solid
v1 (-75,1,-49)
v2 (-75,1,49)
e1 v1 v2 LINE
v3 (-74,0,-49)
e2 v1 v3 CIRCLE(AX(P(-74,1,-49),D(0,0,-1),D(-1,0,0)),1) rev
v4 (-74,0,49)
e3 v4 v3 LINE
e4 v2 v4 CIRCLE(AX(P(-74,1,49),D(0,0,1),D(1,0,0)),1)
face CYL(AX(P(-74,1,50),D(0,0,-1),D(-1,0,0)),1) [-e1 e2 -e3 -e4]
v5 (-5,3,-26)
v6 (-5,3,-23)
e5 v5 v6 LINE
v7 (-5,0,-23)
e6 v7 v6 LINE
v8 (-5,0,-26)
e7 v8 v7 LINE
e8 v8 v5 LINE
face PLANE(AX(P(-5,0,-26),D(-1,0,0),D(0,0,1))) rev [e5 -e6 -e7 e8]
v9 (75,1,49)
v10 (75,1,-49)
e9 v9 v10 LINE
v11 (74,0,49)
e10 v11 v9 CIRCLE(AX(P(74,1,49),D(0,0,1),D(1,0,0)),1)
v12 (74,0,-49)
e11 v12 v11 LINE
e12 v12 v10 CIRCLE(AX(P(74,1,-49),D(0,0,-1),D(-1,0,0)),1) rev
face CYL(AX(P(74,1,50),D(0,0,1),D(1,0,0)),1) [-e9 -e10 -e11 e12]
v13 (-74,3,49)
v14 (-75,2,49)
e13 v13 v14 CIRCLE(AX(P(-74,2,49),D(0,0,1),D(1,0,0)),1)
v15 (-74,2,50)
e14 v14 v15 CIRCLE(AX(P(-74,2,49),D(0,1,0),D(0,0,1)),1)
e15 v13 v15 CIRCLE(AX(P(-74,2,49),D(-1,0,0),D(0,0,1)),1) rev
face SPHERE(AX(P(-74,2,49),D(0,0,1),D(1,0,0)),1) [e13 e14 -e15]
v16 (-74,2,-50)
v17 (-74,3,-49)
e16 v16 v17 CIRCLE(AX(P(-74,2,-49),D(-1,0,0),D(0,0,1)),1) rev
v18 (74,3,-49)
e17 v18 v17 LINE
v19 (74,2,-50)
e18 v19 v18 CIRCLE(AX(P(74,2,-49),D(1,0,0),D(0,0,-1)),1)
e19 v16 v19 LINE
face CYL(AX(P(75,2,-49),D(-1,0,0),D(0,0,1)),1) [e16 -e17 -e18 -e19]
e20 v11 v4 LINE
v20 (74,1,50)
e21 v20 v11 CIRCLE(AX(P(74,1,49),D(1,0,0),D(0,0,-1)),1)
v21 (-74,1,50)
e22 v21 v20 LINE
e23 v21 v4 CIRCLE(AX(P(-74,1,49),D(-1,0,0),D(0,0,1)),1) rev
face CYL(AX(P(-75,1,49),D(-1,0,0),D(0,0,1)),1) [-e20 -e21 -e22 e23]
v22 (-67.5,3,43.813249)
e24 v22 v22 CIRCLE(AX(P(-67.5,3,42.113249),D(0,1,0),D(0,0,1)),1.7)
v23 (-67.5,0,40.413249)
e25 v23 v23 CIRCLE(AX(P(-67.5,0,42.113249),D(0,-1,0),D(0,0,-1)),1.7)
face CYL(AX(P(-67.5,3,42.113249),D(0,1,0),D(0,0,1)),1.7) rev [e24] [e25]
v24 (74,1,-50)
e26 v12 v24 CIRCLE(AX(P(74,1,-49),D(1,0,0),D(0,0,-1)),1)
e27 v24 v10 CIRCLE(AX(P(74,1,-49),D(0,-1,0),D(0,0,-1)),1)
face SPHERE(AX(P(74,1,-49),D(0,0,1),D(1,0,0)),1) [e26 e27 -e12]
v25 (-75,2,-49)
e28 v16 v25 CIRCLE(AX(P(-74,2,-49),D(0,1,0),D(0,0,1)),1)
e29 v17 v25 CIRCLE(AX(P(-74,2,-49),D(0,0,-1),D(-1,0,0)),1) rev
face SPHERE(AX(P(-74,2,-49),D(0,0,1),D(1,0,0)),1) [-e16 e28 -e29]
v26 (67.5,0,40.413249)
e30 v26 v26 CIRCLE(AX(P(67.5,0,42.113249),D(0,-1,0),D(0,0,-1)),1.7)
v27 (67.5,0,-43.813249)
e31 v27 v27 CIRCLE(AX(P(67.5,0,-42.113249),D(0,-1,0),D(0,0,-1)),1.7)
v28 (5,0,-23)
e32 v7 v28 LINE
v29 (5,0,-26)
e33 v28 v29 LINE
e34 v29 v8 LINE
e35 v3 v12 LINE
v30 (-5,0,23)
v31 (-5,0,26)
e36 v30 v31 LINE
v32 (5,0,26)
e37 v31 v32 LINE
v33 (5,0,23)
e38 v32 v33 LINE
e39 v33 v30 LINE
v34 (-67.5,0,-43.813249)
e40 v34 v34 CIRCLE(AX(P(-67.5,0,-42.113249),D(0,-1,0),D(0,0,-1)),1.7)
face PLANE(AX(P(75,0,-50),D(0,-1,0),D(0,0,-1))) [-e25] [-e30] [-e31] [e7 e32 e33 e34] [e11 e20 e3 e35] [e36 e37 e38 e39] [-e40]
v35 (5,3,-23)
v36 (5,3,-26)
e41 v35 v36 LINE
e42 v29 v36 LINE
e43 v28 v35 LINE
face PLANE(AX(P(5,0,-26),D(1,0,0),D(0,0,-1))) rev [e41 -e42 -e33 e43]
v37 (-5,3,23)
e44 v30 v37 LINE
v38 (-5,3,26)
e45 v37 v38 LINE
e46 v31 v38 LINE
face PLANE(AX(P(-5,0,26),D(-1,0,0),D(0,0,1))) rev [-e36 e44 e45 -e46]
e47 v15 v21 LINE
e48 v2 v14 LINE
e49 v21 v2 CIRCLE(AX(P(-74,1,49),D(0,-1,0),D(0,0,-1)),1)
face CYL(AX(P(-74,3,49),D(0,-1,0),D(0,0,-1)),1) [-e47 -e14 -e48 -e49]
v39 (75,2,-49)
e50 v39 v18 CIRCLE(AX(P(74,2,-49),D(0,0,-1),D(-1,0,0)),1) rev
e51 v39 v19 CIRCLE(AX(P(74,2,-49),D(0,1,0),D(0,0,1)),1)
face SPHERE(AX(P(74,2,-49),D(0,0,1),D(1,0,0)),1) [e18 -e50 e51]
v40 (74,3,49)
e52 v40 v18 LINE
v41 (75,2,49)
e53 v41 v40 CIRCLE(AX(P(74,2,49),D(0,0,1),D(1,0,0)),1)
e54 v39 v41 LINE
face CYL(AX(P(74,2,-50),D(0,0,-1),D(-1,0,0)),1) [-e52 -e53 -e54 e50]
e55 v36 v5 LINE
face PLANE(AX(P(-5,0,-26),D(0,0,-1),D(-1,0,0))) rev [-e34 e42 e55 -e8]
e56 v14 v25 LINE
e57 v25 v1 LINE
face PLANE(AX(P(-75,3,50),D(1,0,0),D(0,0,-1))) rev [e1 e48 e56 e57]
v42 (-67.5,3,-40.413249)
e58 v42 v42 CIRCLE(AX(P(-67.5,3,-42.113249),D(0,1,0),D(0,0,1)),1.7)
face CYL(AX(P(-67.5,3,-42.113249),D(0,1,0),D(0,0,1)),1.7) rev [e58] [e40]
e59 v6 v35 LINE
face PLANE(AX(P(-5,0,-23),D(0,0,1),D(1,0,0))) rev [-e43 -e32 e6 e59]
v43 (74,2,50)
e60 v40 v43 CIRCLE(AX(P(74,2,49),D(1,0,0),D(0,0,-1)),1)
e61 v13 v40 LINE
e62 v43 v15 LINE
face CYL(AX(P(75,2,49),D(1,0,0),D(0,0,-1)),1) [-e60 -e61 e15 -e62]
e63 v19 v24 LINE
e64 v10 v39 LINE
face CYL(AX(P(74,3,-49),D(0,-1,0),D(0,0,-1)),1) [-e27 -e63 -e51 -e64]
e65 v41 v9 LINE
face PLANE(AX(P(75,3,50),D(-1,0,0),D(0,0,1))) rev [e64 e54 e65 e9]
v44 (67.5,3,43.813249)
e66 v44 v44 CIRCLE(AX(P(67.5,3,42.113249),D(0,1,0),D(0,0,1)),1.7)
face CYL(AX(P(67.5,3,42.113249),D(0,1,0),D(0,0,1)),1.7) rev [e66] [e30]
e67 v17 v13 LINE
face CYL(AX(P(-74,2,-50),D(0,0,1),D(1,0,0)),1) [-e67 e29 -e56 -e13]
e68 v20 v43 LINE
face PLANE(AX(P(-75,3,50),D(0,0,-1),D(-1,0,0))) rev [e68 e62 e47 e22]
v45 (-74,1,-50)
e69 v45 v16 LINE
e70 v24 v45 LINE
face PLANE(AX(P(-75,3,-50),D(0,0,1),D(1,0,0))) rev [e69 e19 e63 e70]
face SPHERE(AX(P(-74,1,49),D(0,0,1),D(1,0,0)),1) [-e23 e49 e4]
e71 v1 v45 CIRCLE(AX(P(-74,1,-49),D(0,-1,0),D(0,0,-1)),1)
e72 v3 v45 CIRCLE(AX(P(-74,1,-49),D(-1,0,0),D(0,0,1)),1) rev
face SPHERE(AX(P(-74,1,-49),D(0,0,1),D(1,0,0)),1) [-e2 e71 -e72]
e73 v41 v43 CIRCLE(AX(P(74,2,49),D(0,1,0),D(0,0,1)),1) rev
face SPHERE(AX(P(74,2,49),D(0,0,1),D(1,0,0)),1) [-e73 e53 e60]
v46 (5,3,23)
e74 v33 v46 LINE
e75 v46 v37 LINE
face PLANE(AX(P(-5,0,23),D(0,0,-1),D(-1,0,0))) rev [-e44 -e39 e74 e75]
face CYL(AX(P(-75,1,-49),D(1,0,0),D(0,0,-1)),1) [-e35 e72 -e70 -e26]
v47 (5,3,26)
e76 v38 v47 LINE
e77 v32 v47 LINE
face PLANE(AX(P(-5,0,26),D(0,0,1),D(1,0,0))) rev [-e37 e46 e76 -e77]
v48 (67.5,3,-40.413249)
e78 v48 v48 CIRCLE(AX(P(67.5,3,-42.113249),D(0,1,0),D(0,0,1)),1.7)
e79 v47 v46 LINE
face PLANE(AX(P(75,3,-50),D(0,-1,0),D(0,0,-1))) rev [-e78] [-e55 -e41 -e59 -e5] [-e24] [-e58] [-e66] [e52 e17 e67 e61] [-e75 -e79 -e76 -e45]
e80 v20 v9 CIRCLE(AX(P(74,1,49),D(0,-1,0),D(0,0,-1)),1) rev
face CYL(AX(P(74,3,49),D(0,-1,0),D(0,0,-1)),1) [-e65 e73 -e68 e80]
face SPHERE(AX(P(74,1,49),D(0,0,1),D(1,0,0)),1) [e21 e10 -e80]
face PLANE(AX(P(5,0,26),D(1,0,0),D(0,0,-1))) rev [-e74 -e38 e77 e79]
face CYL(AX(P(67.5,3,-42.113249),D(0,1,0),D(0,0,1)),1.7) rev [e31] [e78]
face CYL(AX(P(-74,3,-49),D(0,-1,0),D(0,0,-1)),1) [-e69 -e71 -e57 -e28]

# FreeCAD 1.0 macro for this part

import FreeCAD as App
import Part
import Sketcher

V = App.Vector
Q = App.Units.Quantity

doc = App.newDocument("Part")
body = doc.addObject("PartDesign::Body", "Body")

# Sketch on XZ plane
sketch1 = body.newObject("Sketcher::SketchObject", "Sketch")
sketch1.AttachmentSupport = (doc.getObject("XZ_Plane"), [""])
sketch1.MapMode = "FlatFace"
sketch1.addGeometry(Part.LineSegment(V(-75, -50, 0), V(-75, 50, 0)), False)
sketch1.addGeometry(Part.LineSegment(V(-75, 50, 0), V(75, 50, 0)), False)
sketch1.addGeometry(Part.LineSegment(V(75, 50, 0), V(75, -50, 0)), False)
sketch1.addGeometry(Part.LineSegment(V(75, -50, 0), V(-75, -50, 0)), False)
sketch1.addConstraint(Sketcher.Constraint("Coincident", 0, 2, 1, 1))
sketch1.addConstraint(Sketcher.Constraint("Coincident", 1, 2, 2, 1))
sketch1.addConstraint(Sketcher.Constraint("Coincident", 2, 2, 3, 1))
sketch1.addConstraint(Sketcher.Constraint("Coincident", 3, 2, 0, 1))
sketch1.addConstraint(Sketcher.Constraint("Vertical", 0))
sketch1.addConstraint(Sketcher.Constraint("Horizontal", 1))
sketch1.addConstraint(Sketcher.Constraint("Vertical", 2))
sketch1.addConstraint(Sketcher.Constraint("Horizontal", 3))
sketch1.addConstraint(Sketcher.Constraint("Symmetric", 0, 2, 2, 2, -1, 1))
sketch1.addConstraint(Sketcher.Constraint("DistanceX", 1, 1, 1, 2, Q("150 mm")))
sketch1.addConstraint(Sketcher.Constraint("DistanceY", 0, 1, 0, 2, Q("100 mm")))
pad1 = body.newObject("PartDesign::Pad", "Pad")
pad1.Profile = sketch1
pad1.Length = 3
pad1.Reversed = True
doc.recompute()

fillet = body.newObject("PartDesign::Fillet", "Fillet")
fillet.Base = (pad1, ["Edge1"])
fillet.UseAllEdges = True
fillet.Radius = 1

# Sketch on XZ plane
sketch2 = body.newObject("Sketcher::SketchObject", "Sketch001")
sketch2.AttachmentSupport = (doc.getObject("XZ_Plane"), [""])
sketch2.MapMode = "FlatFace"
sketch2.AttachmentOffset = App.Placement(V(0, 0, -3), App.Rotation())
sketch2.addGeometry(Part.Circle(V(-67.5, 42.1, 0), V(0, 0, 1), 1.7), False)
sketch2.addGeometry(Part.Circle(V(67.5, 42.1, 0), V(0, 0, 1), 1.7), False)
sketch2.addGeometry(Part.Circle(V(67.5, -42.1, 0), V(0, 0, 1), 1.7), False)
sketch2.addGeometry(Part.Circle(V(-67.5, -42.1, 0), V(0, 0, 1), 1.7), False)
sketch2.addConstraint(Sketcher.Constraint("Equal", 0, 1))
sketch2.addConstraint(Sketcher.Constraint("Equal", 1, 2))
sketch2.addConstraint(Sketcher.Constraint("Equal", 2, 3))
sketch2.addConstraint(Sketcher.Constraint("Symmetric", 0, 3, 2, 3, -1, 1))
sketch2.addConstraint(Sketcher.Constraint("Symmetric", 1, 3, 3, 3, -1, 1))
sketch2.addConstraint(Sketcher.Constraint("Symmetric", 0, 3, 1, 3, -2))
sketch2.addConstraint(Sketcher.Constraint("Diameter", 0, Q("3.4 mm")))
sketch2.addConstraint(Sketcher.Constraint("DistanceX", 0, 3, 1, 3, Q("135 mm")))
sketch2.addConstraint(Sketcher.Constraint("DistanceY", -1, 1, 0, 3, Q("42.113249 mm")))
doc.recompute()
hole = body.newObject("PartDesign::Hole", "Hole")
hole.Profile = sketch2
hole.ThreadType = "None"
hole.Diameter = 3.4
hole.DepthType = "Dimension"
hole.Depth = 5
hole.DrillPoint = "Angled"
hole.DrillPointAngle = 118
hole.Reversed = True

# Sketch on XZ plane
sketch3 = body.newObject("Sketcher::SketchObject", "Sketch002")
sketch3.AttachmentSupport = (doc.getObject("XZ_Plane"), [""])
sketch3.MapMode = "FlatFace"
sketch3.AttachmentOffset = App.Placement(V(0, 0, -3), App.Rotation())
sketch3.addGeometry(Part.LineSegment(V(-5, -26, 0), V(-5, -23, 0)), False)
sketch3.addGeometry(Part.LineSegment(V(-5, -23, 0), V(5, -23, 0)), False)
sketch3.addGeometry(Part.LineSegment(V(5, -23, 0), V(5, -26, 0)), False)
sketch3.addGeometry(Part.LineSegment(V(5, -26, 0), V(-5, -26, 0)), False)
sketch3.addGeometry(Part.LineSegment(V(-5, 23, 0), V(-5, 26, 0)), False)
sketch3.addGeometry(Part.LineSegment(V(-5, 26, 0), V(5, 26, 0)), False)
sketch3.addGeometry(Part.LineSegment(V(5, 26, 0), V(5, 23, 0)), False)
sketch3.addGeometry(Part.LineSegment(V(5, 23, 0), V(-5, 23, 0)), False)
sketch3.addConstraint(Sketcher.Constraint("Coincident", 0, 2, 1, 1))
sketch3.addConstraint(Sketcher.Constraint("Coincident", 1, 2, 2, 1))
sketch3.addConstraint(Sketcher.Constraint("Coincident", 2, 2, 3, 1))
sketch3.addConstraint(Sketcher.Constraint("Coincident", 3, 2, 0, 1))
sketch3.addConstraint(Sketcher.Constraint("Coincident", 4, 2, 5, 1))
sketch3.addConstraint(Sketcher.Constraint("Coincident", 5, 2, 6, 1))
sketch3.addConstraint(Sketcher.Constraint("Coincident", 6, 2, 7, 1))
sketch3.addConstraint(Sketcher.Constraint("Coincident", 7, 2, 4, 1))
sketch3.addConstraint(Sketcher.Constraint("Vertical", 0))
sketch3.addConstraint(Sketcher.Constraint("Horizontal", 1))
sketch3.addConstraint(Sketcher.Constraint("Vertical", 2))
sketch3.addConstraint(Sketcher.Constraint("Horizontal", 3))
sketch3.addConstraint(Sketcher.Constraint("Vertical", 4))
sketch3.addConstraint(Sketcher.Constraint("Horizontal", 5))
sketch3.addConstraint(Sketcher.Constraint("Vertical", 6))
sketch3.addConstraint(Sketcher.Constraint("Horizontal", 7))
sketch3.addConstraint(Sketcher.Constraint("Symmetric", 2, 2, 4, 2, -1, 1))
sketch3.addConstraint(Sketcher.Constraint("Symmetric", 0, 2, 6, 2, -1, 1))
sketch3.addConstraint(Sketcher.Constraint("Vertical", 3, 2, 4, 2))
sketch3.addConstraint(Sketcher.Constraint("DistanceX", 1, 1, 1, 2, Q("10 mm")))
sketch3.addConstraint(Sketcher.Constraint("DistanceY", 0, 1, 0, 2, Q("3 mm")))
sketch3.addConstraint(Sketcher.Constraint("DistanceY", 0, 2, -1, 1, Q("23 mm")))
pocket1 = body.newObject("PartDesign::Pocket", "Pocket")
pocket1.Profile = sketch3
pocket1.Length = 3
pocket1.Reversed = True

doc.recompute()
